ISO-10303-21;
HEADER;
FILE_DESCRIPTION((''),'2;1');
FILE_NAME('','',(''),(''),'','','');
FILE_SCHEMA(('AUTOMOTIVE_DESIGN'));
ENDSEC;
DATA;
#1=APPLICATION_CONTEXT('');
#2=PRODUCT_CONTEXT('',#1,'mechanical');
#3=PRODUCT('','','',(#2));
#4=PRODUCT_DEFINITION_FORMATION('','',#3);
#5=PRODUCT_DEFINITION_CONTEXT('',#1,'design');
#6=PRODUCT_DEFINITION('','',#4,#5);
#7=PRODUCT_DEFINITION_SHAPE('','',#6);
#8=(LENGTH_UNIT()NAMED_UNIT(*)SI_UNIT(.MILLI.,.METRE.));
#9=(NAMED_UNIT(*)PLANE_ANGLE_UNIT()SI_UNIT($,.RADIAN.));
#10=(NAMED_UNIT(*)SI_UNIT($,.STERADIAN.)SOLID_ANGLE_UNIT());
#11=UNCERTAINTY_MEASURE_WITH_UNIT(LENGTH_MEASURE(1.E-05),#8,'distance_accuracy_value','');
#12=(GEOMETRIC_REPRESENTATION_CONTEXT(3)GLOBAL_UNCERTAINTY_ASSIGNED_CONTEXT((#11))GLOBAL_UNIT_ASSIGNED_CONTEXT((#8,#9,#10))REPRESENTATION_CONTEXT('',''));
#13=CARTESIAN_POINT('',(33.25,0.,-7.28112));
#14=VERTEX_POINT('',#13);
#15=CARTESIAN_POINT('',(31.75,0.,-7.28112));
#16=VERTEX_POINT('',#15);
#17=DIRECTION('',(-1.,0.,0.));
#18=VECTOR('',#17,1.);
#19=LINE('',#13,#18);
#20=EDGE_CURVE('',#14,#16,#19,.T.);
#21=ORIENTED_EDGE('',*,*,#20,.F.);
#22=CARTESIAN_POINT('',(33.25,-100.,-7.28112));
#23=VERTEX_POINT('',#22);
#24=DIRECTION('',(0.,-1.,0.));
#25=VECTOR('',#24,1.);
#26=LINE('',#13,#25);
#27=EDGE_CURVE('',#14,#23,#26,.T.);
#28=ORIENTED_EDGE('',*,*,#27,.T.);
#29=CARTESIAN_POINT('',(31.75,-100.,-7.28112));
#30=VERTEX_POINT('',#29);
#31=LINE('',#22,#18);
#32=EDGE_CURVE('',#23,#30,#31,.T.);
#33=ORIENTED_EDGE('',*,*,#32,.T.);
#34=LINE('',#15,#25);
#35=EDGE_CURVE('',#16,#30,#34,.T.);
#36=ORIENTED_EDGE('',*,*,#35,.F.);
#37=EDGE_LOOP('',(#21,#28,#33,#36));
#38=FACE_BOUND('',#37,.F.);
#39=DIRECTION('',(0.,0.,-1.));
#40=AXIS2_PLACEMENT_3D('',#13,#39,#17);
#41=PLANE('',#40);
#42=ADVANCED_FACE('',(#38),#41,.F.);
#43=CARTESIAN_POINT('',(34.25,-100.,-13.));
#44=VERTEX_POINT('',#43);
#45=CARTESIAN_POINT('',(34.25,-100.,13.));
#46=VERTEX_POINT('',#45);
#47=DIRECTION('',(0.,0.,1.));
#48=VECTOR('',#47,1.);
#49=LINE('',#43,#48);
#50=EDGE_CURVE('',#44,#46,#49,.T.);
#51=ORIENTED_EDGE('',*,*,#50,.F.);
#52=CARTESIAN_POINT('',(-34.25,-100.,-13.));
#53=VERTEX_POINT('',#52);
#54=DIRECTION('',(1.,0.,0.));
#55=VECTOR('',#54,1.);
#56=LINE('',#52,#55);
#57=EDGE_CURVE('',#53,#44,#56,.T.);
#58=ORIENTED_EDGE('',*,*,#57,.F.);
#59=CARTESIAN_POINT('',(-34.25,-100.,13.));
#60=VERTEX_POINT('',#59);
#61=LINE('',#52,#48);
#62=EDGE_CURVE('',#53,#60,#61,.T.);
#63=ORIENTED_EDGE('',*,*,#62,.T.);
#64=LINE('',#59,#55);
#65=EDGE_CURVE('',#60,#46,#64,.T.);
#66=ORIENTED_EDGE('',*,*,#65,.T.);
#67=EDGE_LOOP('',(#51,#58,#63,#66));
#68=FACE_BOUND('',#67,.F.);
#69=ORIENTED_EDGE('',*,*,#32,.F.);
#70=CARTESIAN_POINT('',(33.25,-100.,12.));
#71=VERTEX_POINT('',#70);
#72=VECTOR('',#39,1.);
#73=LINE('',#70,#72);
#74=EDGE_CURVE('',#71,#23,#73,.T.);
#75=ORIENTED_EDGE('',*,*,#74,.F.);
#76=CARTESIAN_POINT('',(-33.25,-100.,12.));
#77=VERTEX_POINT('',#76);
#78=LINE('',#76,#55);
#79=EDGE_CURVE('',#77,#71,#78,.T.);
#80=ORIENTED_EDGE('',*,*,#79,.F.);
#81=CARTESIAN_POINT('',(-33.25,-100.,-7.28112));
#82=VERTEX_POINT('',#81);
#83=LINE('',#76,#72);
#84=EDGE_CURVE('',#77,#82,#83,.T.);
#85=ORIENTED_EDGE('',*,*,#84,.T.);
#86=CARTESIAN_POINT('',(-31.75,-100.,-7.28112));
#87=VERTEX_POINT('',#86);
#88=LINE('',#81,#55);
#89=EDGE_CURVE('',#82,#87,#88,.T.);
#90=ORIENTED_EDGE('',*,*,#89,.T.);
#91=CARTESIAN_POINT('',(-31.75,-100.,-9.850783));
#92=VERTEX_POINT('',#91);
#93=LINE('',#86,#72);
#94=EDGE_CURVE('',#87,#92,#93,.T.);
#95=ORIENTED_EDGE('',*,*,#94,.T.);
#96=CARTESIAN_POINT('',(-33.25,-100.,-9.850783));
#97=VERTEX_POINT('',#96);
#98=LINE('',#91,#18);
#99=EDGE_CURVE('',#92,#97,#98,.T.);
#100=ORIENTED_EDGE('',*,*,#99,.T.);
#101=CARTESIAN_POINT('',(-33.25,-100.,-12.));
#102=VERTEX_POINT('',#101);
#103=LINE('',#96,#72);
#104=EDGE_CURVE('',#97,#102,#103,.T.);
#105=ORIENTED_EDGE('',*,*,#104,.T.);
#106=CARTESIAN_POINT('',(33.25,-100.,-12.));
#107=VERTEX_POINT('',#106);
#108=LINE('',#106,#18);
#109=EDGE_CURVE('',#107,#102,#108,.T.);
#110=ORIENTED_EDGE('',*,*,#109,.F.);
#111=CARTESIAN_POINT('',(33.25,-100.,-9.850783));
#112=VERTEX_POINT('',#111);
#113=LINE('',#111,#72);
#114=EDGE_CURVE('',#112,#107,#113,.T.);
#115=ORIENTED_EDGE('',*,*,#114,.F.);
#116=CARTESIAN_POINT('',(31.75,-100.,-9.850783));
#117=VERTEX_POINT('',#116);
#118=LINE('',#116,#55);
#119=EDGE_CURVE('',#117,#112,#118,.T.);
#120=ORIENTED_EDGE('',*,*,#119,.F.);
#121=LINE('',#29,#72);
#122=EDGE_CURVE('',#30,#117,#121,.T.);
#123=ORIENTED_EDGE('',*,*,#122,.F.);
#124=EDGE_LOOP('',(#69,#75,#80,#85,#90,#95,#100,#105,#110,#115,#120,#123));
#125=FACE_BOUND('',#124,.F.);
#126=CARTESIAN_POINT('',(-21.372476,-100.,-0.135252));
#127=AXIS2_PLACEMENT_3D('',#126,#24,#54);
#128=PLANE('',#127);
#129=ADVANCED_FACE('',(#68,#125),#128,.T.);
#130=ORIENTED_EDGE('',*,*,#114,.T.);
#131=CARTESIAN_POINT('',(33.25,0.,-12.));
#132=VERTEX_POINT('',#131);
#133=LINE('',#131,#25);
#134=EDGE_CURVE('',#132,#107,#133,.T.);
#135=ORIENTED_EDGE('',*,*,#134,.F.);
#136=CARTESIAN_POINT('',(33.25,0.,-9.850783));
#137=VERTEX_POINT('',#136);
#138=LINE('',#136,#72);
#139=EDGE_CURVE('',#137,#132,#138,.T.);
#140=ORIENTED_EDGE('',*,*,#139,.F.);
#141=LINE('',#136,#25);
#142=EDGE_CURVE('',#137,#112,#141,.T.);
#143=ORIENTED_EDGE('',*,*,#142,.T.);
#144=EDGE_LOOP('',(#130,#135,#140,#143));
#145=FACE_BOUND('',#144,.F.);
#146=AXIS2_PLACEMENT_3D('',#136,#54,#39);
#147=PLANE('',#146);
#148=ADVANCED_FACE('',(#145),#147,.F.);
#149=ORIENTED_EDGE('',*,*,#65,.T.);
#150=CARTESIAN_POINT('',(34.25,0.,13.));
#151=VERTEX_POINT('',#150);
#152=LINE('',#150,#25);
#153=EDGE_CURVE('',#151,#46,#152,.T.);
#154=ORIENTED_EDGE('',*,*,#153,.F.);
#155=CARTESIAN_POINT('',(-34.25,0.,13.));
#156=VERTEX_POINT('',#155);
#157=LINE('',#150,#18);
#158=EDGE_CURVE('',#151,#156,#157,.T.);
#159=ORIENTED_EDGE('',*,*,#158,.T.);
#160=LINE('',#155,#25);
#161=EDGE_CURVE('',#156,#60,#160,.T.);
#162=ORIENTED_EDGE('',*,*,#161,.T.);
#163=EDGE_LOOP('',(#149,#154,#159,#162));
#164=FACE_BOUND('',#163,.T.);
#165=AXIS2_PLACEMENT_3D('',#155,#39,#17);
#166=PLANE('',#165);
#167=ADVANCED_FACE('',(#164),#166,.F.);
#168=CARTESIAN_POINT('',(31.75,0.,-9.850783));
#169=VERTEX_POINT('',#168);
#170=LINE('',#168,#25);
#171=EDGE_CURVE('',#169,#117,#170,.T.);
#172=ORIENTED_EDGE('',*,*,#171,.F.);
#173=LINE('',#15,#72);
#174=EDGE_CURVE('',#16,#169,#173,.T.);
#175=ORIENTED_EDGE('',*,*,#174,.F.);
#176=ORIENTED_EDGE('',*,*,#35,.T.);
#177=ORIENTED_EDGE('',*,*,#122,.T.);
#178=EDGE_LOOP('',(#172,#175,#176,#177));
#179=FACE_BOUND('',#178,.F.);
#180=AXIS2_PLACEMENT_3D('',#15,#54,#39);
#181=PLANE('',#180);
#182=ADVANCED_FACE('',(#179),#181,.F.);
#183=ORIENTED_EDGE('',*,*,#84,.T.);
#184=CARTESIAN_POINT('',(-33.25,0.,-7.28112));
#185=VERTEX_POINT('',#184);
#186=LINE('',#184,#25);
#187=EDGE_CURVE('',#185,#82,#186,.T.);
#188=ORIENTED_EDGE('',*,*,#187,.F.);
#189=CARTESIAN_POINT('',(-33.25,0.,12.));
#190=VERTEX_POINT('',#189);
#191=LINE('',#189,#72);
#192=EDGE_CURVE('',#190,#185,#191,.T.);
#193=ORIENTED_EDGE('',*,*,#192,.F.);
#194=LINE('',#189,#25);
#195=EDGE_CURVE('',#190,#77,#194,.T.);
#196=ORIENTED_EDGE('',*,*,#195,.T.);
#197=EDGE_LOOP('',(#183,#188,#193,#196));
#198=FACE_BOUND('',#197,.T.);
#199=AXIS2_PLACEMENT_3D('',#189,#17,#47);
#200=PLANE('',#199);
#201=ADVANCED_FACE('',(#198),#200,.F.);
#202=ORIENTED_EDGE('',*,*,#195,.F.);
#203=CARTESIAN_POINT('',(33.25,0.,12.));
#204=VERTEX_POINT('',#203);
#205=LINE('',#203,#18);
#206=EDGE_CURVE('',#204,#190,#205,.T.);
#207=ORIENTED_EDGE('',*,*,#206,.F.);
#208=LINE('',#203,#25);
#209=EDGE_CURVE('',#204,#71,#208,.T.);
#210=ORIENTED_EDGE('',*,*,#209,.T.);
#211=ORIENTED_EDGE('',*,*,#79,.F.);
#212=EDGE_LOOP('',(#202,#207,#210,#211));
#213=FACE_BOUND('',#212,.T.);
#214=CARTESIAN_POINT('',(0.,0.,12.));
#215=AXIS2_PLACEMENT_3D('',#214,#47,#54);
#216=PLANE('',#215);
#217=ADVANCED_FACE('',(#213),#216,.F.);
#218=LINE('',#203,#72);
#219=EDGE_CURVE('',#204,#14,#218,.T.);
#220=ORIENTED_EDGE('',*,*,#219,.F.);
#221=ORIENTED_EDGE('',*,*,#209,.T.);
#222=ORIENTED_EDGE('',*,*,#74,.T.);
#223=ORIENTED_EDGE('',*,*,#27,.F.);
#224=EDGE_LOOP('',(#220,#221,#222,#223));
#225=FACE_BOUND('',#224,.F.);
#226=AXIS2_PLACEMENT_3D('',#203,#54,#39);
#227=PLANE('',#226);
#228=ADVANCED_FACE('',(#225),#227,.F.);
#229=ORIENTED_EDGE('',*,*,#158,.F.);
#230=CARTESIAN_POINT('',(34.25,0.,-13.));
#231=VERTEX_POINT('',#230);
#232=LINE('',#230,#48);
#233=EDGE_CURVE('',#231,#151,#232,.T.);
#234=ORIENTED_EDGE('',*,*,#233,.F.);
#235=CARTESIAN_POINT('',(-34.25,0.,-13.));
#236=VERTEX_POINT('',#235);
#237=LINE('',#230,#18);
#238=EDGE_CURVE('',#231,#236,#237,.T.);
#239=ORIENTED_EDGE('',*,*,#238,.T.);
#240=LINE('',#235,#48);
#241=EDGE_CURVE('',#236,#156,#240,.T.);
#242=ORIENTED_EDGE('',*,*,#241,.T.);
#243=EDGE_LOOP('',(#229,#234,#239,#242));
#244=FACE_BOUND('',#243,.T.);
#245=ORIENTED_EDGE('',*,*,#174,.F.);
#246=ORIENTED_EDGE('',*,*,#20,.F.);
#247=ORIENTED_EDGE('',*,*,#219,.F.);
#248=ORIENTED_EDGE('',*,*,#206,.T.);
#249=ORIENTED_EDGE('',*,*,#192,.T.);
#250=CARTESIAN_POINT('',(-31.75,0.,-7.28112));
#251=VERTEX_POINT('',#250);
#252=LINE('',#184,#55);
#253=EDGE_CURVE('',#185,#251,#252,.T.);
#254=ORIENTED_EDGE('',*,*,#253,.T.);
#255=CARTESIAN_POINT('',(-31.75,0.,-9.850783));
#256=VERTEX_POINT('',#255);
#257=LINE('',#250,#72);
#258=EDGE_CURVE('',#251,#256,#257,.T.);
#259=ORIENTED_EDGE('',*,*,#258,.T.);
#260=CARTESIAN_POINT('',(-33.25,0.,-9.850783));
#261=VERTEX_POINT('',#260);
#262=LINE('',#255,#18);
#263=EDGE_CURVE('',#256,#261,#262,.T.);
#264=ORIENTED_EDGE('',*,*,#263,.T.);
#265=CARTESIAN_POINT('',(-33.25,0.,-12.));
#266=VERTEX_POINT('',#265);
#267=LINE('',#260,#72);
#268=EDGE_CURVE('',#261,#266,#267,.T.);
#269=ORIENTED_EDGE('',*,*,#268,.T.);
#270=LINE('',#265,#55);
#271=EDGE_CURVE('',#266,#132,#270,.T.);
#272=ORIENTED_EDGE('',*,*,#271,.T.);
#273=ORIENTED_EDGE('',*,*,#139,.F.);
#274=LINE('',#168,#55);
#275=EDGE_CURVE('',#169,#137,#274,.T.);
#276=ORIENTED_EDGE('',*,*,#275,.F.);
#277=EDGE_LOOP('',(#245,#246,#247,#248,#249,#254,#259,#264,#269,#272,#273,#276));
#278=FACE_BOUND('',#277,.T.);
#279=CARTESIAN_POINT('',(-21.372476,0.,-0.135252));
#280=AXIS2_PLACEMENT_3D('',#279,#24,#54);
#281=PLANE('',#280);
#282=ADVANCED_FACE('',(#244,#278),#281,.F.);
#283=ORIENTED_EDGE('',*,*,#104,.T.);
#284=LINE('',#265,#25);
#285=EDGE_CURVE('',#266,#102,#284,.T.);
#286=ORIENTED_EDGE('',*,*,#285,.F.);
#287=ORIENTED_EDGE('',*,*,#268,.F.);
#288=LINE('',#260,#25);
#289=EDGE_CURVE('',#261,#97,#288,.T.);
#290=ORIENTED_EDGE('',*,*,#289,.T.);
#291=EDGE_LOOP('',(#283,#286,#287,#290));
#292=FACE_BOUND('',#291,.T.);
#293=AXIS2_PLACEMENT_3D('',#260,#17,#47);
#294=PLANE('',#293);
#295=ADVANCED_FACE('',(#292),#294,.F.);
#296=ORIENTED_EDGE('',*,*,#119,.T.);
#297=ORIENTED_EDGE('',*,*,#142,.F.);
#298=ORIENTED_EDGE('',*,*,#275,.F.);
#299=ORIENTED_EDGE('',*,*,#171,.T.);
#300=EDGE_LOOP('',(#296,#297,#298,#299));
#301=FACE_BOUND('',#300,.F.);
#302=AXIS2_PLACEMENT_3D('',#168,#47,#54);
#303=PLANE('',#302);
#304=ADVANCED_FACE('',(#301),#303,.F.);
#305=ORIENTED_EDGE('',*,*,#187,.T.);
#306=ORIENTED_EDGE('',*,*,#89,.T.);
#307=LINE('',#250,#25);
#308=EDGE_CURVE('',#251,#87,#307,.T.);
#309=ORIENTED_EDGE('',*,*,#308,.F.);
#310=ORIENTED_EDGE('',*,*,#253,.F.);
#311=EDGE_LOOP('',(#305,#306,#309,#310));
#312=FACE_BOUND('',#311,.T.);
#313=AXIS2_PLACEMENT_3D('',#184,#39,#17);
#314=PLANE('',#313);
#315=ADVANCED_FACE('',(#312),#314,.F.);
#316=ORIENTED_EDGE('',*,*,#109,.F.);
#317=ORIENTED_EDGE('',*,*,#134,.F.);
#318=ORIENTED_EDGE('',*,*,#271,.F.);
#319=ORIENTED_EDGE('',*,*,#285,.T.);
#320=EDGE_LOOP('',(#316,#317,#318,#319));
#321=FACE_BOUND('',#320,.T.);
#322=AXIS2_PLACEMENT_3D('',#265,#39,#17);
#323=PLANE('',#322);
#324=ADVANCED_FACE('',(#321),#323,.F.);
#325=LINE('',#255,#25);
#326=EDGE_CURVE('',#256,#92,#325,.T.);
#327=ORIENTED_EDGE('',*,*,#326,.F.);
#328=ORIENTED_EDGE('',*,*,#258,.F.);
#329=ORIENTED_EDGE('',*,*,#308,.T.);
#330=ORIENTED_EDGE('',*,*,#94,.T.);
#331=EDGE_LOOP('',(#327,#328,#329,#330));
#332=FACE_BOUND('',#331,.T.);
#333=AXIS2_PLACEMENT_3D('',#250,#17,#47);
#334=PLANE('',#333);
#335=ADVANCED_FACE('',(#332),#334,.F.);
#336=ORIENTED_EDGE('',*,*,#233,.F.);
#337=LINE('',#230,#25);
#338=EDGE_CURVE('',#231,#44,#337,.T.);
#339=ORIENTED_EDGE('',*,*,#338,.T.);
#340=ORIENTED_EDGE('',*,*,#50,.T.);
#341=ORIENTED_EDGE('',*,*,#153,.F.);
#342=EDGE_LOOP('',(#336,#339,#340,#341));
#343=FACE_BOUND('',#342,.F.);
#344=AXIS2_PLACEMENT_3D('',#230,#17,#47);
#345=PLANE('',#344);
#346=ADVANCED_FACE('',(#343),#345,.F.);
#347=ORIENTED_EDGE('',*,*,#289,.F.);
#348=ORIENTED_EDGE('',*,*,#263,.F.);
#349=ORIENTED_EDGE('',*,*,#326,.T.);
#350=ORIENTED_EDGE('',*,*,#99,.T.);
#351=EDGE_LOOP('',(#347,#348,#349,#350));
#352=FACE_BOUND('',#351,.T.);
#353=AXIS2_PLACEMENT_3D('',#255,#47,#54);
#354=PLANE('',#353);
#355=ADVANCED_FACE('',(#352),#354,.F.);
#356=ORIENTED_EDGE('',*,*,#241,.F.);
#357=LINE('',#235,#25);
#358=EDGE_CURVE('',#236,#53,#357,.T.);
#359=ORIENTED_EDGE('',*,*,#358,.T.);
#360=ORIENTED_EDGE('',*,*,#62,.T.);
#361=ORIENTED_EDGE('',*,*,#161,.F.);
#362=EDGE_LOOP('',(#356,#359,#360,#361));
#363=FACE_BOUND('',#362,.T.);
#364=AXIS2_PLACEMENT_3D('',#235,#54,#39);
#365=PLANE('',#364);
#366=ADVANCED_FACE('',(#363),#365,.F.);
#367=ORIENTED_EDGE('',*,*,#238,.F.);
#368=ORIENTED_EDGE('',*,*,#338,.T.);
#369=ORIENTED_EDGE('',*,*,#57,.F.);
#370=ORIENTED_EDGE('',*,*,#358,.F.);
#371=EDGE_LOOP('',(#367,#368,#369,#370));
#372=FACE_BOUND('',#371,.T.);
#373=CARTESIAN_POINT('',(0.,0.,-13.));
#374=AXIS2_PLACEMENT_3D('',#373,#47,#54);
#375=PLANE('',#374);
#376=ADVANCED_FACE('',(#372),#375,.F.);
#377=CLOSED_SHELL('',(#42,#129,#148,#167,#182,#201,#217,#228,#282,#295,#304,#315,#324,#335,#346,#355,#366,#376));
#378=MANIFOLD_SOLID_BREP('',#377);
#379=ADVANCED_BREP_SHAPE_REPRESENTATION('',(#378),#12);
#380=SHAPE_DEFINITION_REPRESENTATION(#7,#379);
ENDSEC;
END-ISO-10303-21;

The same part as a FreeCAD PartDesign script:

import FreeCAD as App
import Part
import Sketcher
Q = App.Units.Quantity


def add_polygon(sketch, points):
    """Adds a closed chain of lines whose ends are joined by coincident constraints."""
    first, n = sketch.GeometryCount, len(points)
    for a, b in zip(points, points[1:] + points[:1]):
        sketch.addGeometry(Part.LineSegment(App.Vector(*a, 0), App.Vector(*b, 0)), False)
    for i in range(n):
        sketch.addConstraint(Sketcher.Constraint("Coincident", first + i, 2, first + (i + 1) % n, 1))

doc = App.newDocument("Part")
body = doc.addObject("PartDesign::Body", "Body")

# Sketch on XZ plane
sketch1 = doc.addObject("Sketcher::SketchObject", "Sketch")
body.addObject(sketch1)
sketch1.AttachmentSupport = (doc.XZ_Plane, [""])
sketch1.MapMode = "FlatFace"
add_polygon(sketch1, [(34.2, 13), (0, 13), (0, 12), (33.2, 12), (33.2, -7.3), (31.8, -7.3), (31.8, -9.9), (33.2, -9.9), (33.2, -12), (0, -12), (0, -13), (34.2, -13)])  # lines 0-11
sketch1.addConstraint([
    Sketcher.Constraint("Horizontal", 0),
    Sketcher.Constraint("Vertical", 1),
    Sketcher.Constraint("Horizontal", 2),
    Sketcher.Constraint("Vertical", 3),
    Sketcher.Constraint("Horizontal", 4),
    Sketcher.Constraint("Vertical", 5),
    Sketcher.Constraint("Horizontal", 6),
    Sketcher.Constraint("Vertical", 7),
    Sketcher.Constraint("Horizontal", 8),
    Sketcher.Constraint("Vertical", 9),
    Sketcher.Constraint("Horizontal", 10),
    Sketcher.Constraint("Vertical", 11),
    Sketcher.Constraint("Symmetric", 1, 2, 8, 2, -1, 1),
    Sketcher.Constraint("Symmetric", 0, 2, 9, 2, -1),
    Sketcher.Constraint("Vertical", 3, 2, 6, 2),
    Sketcher.Constraint("DistanceY", 1, 2, 1, 1, Q("1 mm")),
    Sketcher.Constraint("DistanceY", 11, 1, 11, 2, Q("26 mm")),
    Sketcher.Constraint("DistanceX", 4, 2, 4, 1, Q("1.5 mm")),
    Sketcher.Constraint("DistanceX", 7, 2, 10, 2, Q("1 mm")),
    Sketcher.Constraint("DistanceX", 0, 2, 0, 1, Q("34.25 mm")),
    Sketcher.Constraint("DistanceY", 3, 2, 3, 1, Q("19.28112 mm")),
    Sketcher.Constraint("DistanceY", 5, 2, 5, 1, Q("2.569663 mm")),
])
pad1 = doc.addObject("PartDesign::Pad", "Pad")
body.addObject(pad1)
pad1.Profile = sketch1
pad1.Length = 100
body2 = doc.addObject("PartDesign::Body", "Body001")
doc.recompute()

body2.BaseFeature = body
doc.recompute()

mirroring = doc.addObject("Part::Mirroring", "Mirroring")
mirroring.Source = body
mirroring.Base = App.Vector(0, -50, 12.5)
mirroring.Normal = App.Vector(-1, 0, 0)
body3 = doc.addObject("PartDesign::Body", "Body002")
body3.BaseFeature = mirroring
boolean = doc.addObject("PartDesign::Boolean", "Boolean")
body2.addObject(boolean)
boolean.Type = "Fuse"
boolean.addObjects([body3])
doc.recompute()
mirroring.Visibility = False

doc.recompute()
